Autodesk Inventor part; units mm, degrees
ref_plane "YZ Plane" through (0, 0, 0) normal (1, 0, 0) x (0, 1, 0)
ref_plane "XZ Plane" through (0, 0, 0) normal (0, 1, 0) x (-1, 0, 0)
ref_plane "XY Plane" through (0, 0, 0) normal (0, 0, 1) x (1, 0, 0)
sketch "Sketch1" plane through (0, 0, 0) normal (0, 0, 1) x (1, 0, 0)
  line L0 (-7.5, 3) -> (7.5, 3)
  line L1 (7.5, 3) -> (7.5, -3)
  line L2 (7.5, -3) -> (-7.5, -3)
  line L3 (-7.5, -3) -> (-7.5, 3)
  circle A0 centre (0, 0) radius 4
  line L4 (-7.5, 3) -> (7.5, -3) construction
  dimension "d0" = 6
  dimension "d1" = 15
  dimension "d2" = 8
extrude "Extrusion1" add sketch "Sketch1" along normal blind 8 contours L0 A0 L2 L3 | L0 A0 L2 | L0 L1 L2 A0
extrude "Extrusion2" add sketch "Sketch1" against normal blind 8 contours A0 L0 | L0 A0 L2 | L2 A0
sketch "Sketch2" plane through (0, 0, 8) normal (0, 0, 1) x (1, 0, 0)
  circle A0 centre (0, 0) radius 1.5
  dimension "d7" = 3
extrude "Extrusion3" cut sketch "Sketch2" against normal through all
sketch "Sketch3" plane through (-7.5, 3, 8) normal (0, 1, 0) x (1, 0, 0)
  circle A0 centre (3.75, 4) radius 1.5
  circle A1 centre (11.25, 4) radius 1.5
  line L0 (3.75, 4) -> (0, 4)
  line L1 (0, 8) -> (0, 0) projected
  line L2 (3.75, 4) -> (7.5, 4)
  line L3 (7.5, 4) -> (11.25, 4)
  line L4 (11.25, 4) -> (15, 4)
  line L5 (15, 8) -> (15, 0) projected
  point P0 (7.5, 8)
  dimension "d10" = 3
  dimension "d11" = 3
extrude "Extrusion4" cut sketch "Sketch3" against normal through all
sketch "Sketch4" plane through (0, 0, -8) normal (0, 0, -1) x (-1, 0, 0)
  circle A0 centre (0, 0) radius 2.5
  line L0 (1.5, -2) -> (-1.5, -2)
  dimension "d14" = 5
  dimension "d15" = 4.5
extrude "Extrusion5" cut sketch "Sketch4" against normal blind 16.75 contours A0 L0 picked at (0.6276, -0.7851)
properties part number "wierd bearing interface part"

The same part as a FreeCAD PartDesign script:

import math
import FreeCAD as App
import Part
import Sketcher
from FreeCAD import Vector


def add_polygon(sketch, points):
    """Adds a closed chain of lines whose ends are joined by coincident constraints."""
    first, n = sketch.GeometryCount, len(points)
    for a, b in zip(points, points[1:] + points[:1]):
        sketch.addGeometry(Part.LineSegment(App.Vector(*a, 0), App.Vector(*b, 0)), False)
    for i in range(n):
        sketch.addConstraint(Sketcher.Constraint("Coincident", first + i, 2, first + (i + 1) % n, 1))

doc = App.newDocument("Part")
body = doc.addObject("PartDesign::Body", "Body")

# Sketch on XY plane
sketch1 = doc.addObject("Sketcher::SketchObject", "Sketch")
body.addObject(sketch1)
sketch1.AttachmentSupport = (doc.XY_Plane, [""])
sketch1.MapMode = "FlatFace"
add_polygon(sketch1, [(-8, 3), (-8, -3), (8, -3), (8, 3)])  # lines 0-3
sketch1.addConstraint([
    Sketcher.Constraint("Vertical", 0),
    Sketcher.Constraint("Horizontal", 1),
    Sketcher.Constraint("Vertical", 2),
    Sketcher.Constraint("Horizontal", 3),
    Sketcher.Constraint("Symmetric", 0, 2, 2, 2, -1, 1),
    Sketcher.Constraint("DistanceX", 1, 1, 1, 2, 15.0),
    Sketcher.Constraint("DistanceY", 0, 2, 0, 1, 6.0),
])
pad1 = doc.addObject("PartDesign::Pad", "Pad")
body.addObject(pad1)
pad1.Profile = sketch1
pad1.Length = 8

# Sketch on XY plane
sketch2 = doc.addObject("Sketcher::SketchObject", "Sketch001")
body.addObject(sketch2)
sketch2.AttachmentSupport = (doc.XY_Plane, [""])
sketch2.MapMode = "FlatFace"
sketch2.addGeometry(Part.Circle(Vector(0, 0, 0), Vector(0, 0, 1), 4), False)
sketch2.addConstraint([
    Sketcher.Constraint("Coincident", 0, 3, -1, 1),
    Sketcher.Constraint("Diameter", 0, 8.0),
])
pad2 = doc.addObject("PartDesign::Pad", "Pad001")
body.addObject(pad2)
pad2.Profile = sketch2
pad2.Length = 8
pad2.Reversed = True

# Sketch on XY plane
sketch3 = doc.addObject("Sketcher::SketchObject", "Sketch002")
body.addObject(sketch3)
sketch3.AttachmentSupport = (doc.XY_Plane, [""])
sketch3.MapMode = "FlatFace"
sketch3.AttachmentOffset = App.Placement(Vector(0, 0, 8), App.Rotation())
sketch3.addGeometry(Part.Circle(Vector(0, 0, 0), Vector(0, 0, 1), 1.5), False)
sketch3.addConstraint([
    Sketcher.Constraint("Coincident", 0, 3, -1, 1),
    Sketcher.Constraint("Diameter", 0, 3.0),
])
pocket1 = doc.addObject("PartDesign::Pocket", "Pocket")
body.addObject(pocket1)
pocket1.Profile = sketch3
pocket1.Type = "ThroughAll"

# Sketch on XZ plane
sketch4 = doc.addObject("Sketcher::SketchObject", "Sketch003")
body.addObject(sketch4)
sketch4.AttachmentSupport = (doc.XZ_Plane, [""])
sketch4.MapMode = "FlatFace"
sketch4.AttachmentOffset = App.Placement(Vector(0, 0, -3), App.Rotation())
sketch4.addGeometry([
    Part.Circle(Vector(-3.8, 4, 0), Vector(0, 0, 1), 1.5),
    Part.Circle(Vector(3.8, 4, 0), Vector(0, 0, 1), 1.5),
], False)
sketch4.addConstraint([
    Sketcher.Constraint("Equal", 0, 1),
    Sketcher.Constraint("Symmetric", 0, 3, 1, 3, -2),
    Sketcher.Constraint("Diameter", 0, 3.0),
    Sketcher.Constraint("DistanceY", -1, 1, 0, 3, 4.0),
    Sketcher.Constraint("DistanceX", 0, 3, 1, 3, 7.5),
])
pocket2 = doc.addObject("PartDesign::Pocket", "Pocket001")
body.addObject(pocket2)
pocket2.Profile = sketch4
pocket2.Type = "ThroughAll"
pocket2.Reversed = True

# Sketch on XY plane
sketch5 = doc.addObject("Sketcher::SketchObject", "Sketch004")
body.addObject(sketch5)
sketch5.AttachmentSupport = (doc.XY_Plane, [""])
sketch5.MapMode = "FlatFace"
sketch5.AttachmentOffset = App.Placement(Vector(0, 0, -8), App.Rotation())
sketch5.addGeometry([
    Part.ArcOfCircle(Part.Circle(Vector(0, 0, 0), Vector(0, 0, 1), 2.5), math.radians(-53), math.radians(233)),
    Part.LineSegment(Vector(1.5, -2, 0), Vector(-1.5, -2, 0)),
], False)
sketch5.addConstraint([
    Sketcher.Constraint("Coincident", 0, 1, 1, 1),
    Sketcher.Constraint("Coincident", 1, 2, 0, 2),
    Sketcher.Constraint("Horizontal", 1),
    Sketcher.Constraint("Coincident", 0, 3, -1, 1),
    Sketcher.Constraint("Radius", 0, 2.5),
    Sketcher.Constraint("DistanceX", 1, 2, 1, 1, 3.0),
])
pocket3 = doc.addObject("PartDesign::Pocket", "Pocket002")
body.addObject(pocket3)
pocket3.Profile = sketch5
pocket3.Length = 16.75
pocket3.Reversed = True

doc.recompute()
